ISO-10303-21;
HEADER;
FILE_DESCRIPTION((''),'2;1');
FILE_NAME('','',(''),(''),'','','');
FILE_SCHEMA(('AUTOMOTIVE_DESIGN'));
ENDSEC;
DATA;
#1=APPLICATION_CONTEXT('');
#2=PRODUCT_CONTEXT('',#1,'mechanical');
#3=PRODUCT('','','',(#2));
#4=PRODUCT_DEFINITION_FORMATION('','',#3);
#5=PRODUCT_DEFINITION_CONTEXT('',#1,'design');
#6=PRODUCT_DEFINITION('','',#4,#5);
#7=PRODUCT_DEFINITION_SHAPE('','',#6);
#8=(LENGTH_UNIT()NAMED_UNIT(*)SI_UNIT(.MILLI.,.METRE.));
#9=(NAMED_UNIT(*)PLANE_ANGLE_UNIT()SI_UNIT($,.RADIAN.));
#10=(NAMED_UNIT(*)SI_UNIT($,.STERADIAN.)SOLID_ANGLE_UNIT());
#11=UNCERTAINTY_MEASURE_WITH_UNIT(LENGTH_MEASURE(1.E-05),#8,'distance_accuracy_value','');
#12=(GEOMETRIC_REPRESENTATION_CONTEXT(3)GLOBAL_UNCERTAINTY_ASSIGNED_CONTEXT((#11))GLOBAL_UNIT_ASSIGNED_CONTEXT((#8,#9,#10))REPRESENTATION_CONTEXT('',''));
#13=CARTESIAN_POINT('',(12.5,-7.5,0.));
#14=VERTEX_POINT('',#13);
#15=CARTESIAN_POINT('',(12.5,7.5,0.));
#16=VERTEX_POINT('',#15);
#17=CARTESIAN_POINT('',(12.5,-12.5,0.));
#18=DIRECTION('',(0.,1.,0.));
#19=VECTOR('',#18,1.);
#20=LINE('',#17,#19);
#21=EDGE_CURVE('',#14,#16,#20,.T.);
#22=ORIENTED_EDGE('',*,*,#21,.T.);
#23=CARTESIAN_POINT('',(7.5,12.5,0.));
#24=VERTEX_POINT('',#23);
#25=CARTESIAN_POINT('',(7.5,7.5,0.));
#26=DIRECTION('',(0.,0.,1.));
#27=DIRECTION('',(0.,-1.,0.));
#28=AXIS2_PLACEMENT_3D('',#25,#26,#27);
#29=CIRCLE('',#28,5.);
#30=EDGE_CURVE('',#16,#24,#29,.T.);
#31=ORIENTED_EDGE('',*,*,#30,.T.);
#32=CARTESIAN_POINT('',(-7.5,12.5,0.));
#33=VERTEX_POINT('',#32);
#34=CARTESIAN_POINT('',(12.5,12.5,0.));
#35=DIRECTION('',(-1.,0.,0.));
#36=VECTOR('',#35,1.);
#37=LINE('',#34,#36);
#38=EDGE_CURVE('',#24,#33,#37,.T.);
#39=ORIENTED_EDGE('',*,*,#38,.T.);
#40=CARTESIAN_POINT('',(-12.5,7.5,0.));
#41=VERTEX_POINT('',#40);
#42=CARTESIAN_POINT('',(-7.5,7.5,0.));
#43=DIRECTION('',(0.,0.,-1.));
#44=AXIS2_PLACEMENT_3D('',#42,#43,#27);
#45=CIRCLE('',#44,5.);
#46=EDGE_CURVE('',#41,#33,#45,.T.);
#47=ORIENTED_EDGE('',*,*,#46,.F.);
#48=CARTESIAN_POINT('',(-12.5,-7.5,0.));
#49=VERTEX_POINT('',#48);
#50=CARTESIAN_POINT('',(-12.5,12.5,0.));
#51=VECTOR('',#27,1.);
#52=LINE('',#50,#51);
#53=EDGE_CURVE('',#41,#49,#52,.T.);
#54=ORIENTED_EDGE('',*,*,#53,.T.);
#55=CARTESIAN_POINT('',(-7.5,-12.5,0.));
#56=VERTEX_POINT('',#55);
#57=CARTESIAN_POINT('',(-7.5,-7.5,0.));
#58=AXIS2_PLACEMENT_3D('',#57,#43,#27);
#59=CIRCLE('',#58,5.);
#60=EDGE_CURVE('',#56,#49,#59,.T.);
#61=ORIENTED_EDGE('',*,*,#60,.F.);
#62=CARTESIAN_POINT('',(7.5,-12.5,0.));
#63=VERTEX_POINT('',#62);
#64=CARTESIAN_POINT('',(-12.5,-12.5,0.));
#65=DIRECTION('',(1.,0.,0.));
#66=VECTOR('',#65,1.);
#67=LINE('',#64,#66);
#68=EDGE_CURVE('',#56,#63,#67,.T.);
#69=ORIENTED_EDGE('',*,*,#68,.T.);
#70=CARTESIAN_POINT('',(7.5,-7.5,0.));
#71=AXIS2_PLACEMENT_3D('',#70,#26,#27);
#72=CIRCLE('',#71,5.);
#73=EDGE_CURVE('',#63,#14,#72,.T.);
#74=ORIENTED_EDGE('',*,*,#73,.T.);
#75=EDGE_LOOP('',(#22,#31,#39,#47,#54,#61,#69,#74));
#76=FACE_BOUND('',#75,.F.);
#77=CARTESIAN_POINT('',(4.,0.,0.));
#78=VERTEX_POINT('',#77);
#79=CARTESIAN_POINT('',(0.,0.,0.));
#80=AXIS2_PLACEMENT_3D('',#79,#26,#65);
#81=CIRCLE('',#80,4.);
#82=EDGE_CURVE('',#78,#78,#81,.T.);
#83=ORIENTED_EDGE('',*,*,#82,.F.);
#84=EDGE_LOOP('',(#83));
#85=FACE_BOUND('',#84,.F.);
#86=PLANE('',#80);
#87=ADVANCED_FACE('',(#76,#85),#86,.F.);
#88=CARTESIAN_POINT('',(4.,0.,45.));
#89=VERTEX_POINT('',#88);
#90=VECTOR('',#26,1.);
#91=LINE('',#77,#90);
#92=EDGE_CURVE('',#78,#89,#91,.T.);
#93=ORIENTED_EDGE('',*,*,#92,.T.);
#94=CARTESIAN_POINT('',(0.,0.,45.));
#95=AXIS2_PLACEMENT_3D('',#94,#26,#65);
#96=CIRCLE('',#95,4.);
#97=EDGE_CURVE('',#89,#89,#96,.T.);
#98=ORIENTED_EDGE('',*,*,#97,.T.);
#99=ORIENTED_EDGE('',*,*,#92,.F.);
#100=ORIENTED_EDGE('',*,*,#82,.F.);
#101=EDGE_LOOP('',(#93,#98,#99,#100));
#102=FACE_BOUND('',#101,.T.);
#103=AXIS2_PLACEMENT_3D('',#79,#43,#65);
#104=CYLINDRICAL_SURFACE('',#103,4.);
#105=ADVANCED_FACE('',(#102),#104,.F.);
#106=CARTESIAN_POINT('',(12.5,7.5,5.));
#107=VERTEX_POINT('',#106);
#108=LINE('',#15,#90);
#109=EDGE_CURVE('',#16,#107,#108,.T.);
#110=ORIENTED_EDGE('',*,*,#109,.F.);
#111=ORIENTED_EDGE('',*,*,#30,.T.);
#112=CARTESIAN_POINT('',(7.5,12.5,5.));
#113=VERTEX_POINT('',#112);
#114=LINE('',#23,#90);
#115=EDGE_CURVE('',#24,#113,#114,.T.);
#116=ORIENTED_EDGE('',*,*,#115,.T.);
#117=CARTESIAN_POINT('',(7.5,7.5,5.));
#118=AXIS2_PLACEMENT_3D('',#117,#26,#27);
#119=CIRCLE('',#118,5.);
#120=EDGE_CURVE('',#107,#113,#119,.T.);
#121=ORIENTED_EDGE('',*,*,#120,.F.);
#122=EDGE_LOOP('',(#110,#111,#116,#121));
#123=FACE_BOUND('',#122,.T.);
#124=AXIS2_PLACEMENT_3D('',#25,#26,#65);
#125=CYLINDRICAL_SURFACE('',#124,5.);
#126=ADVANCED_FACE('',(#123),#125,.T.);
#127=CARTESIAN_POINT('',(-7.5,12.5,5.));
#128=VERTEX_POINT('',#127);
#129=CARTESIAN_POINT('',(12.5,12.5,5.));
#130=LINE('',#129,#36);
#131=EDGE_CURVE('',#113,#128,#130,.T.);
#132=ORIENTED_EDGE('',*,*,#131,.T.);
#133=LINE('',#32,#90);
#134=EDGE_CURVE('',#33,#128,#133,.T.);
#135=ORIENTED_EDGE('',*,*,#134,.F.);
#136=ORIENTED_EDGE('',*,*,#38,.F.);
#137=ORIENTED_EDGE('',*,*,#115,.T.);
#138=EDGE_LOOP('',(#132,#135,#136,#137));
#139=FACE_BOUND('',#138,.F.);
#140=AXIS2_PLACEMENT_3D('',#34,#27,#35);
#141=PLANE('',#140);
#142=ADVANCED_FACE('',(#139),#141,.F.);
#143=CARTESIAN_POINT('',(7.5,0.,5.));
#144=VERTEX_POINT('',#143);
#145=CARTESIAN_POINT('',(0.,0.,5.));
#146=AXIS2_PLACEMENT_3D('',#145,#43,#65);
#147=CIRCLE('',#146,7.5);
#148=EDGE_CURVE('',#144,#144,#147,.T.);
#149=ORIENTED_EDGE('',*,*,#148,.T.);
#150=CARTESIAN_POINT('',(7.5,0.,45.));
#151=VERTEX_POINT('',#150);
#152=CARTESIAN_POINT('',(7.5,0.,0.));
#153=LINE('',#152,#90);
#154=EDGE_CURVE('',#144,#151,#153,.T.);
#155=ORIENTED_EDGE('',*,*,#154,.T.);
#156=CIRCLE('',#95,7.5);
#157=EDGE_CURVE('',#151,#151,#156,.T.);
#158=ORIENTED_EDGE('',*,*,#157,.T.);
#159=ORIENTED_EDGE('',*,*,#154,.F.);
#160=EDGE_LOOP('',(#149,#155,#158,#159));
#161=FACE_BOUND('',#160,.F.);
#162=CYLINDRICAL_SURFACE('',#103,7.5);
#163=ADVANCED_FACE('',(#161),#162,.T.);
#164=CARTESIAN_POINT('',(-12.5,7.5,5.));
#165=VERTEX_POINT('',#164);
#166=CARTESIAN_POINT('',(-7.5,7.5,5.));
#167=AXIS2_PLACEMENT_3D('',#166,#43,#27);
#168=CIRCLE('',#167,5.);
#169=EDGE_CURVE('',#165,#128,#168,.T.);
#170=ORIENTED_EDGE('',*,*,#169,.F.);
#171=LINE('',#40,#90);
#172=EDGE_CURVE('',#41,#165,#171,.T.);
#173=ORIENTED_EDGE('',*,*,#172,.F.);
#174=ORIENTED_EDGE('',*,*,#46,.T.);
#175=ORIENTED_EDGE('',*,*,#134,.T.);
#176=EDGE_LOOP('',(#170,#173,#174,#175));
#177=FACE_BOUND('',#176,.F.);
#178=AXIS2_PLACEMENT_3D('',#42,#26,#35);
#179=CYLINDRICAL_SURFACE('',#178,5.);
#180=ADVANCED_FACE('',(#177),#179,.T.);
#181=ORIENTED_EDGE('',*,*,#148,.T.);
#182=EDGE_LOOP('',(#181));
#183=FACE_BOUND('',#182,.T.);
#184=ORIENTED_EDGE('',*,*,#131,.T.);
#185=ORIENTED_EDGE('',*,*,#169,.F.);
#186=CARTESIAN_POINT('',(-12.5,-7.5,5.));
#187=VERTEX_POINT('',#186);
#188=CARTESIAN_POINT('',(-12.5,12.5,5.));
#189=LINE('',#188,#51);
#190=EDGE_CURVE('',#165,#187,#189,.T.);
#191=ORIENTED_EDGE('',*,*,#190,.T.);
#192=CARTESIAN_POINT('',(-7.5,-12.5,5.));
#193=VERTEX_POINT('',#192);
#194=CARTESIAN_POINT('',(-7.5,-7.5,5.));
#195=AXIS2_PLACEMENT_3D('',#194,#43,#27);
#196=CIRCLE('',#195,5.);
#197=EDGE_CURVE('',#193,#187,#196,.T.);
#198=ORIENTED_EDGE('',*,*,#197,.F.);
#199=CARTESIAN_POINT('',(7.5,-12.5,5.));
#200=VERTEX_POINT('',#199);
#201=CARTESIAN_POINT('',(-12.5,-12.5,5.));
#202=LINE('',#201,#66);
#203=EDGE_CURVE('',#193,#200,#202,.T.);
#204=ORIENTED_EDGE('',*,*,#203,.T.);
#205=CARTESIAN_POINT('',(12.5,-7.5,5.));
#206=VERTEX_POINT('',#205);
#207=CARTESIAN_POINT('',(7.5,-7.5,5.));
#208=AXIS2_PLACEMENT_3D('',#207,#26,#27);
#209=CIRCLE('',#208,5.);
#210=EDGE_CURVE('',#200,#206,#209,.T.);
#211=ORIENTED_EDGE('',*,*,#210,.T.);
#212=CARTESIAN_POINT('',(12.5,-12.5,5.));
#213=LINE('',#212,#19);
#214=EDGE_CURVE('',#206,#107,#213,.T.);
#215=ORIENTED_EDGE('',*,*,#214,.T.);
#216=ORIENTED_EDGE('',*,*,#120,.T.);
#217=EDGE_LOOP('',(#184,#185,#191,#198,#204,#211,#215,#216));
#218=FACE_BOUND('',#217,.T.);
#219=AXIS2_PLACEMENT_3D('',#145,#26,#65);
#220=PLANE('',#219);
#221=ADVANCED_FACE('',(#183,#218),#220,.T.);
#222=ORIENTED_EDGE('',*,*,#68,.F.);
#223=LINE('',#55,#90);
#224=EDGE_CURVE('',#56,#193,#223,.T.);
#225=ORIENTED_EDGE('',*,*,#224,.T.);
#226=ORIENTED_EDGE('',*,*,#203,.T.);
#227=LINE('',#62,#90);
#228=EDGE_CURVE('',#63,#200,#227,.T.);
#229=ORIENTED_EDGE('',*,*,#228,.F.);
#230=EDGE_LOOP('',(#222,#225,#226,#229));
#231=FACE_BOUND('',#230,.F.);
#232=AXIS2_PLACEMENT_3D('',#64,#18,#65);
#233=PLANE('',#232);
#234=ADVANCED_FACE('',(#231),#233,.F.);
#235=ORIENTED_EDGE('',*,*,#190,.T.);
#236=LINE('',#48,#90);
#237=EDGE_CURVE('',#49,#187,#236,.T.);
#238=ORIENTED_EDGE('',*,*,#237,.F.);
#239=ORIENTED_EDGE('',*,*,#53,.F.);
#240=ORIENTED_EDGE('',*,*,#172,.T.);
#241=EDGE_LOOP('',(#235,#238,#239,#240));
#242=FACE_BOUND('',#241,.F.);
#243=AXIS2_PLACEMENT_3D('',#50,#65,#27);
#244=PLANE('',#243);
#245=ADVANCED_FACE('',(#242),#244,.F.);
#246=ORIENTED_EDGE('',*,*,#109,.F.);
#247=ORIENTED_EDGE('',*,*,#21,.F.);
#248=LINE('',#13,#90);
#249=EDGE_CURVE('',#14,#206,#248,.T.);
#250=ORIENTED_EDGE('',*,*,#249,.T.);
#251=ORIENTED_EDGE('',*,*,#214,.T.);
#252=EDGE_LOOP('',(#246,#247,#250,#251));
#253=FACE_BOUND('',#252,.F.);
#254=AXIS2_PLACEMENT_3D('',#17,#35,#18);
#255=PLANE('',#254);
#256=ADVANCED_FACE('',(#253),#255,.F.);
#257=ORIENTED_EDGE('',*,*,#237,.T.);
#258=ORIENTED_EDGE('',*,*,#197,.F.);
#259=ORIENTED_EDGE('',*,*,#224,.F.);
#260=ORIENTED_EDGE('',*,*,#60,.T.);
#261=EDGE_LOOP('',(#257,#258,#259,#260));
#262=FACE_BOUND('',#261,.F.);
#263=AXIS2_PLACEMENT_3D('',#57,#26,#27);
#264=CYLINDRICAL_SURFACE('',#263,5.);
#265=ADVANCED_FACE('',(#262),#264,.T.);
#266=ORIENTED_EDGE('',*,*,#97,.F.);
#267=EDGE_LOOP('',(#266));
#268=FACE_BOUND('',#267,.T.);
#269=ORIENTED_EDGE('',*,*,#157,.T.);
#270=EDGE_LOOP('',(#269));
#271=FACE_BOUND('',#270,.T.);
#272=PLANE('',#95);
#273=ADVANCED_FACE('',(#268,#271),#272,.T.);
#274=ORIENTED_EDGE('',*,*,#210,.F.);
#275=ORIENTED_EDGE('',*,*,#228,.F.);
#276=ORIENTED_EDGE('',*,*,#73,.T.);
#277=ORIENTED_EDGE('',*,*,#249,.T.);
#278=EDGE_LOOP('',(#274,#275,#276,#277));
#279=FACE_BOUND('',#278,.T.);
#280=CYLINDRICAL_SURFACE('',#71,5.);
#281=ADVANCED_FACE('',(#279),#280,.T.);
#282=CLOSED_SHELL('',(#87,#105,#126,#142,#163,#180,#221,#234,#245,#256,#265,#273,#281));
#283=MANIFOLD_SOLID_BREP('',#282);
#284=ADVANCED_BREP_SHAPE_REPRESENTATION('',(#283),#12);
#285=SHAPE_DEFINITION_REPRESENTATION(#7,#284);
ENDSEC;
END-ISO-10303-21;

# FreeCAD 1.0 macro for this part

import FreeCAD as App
import Part
import Sketcher
from FreeCAD import Vector


def edges_at(feature, points):
    """Names of the edges that pass closest to the given points."""
    edges = feature.Shape.Edges
    near = lambda p: min(range(len(edges)), key=lambda i: edges[i].distToShape(Part.Vertex(*p))[0])
    return sorted({f"Edge{near(p) + 1}" for p in points})


def add_polygon(sketch, points):
    """Adds a closed chain of lines whose ends are joined by coincident constraints."""
    first, n = sketch.GeometryCount, len(points)
    for a, b in zip(points, points[1:] + points[:1]):
        sketch.addGeometry(Part.LineSegment(App.Vector(*a, 0), App.Vector(*b, 0)), False)
    for i in range(n):
        sketch.addConstraint(Sketcher.Constraint("Coincident", first + i, 2, first + (i + 1) % n, 1))

doc = App.newDocument("Part")
params = doc.addObject("Spreadsheet::Sheet", "Params")
for row, (alias, value) in enumerate([
    ("sketch1_width", "25 mm"),
    ("pad1_length", "5 mm"),
    ("sketch2_diameter", "15 mm"),
    ("sketch2_diameter2", "8 mm"),
    ("pad2_length", "45 mm"),
    ("fillet_radius", "5 mm"),
    ("sketch3_diameter", "8 mm"),
    ("pocket1_length", "45 mm"),
], start=1):
    params.set(f"A{row}", alias)
    params.set(f"B{row}", "=" + value)
    params.setAlias(f"B{row}", alias)

body = doc.addObject("PartDesign::Body", "Body")

# Sketch on XY plane
sketch1 = body.newObject("Sketcher::SketchObject", "Sketch")
sketch1.AttachmentSupport = (doc.getObject("XY_Plane"), [""])
sketch1.MapMode = "FlatFace"
add_polygon(sketch1, [(-12, -12), (12, -12), (12, 12), (-12, 12)])  # lines 0-3
sketch1.addConstraint([
    Sketcher.Constraint("Horizontal", 0),
    Sketcher.Constraint("Vertical", 1),
    Sketcher.Constraint("Horizontal", 2),
    Sketcher.Constraint("Vertical", 3),
    Sketcher.Constraint("Symmetric", 0, 2, 2, 2, -1, 1),
    Sketcher.Constraint("Equal", 2, 1),
    Sketcher.Constraint("DistanceX", 0, 1, 0, 2, 25.0),
])
sketch1.setExpression("Constraints[10]", "Params.sketch1_width")
pad1 = body.newObject("PartDesign::Pad", "Pad")
pad1.Profile = sketch1
pad1.setExpression("Length", "Params.pad1_length")

# Sketch on XY plane
sketch2 = body.newObject("Sketcher::SketchObject", "Sketch001")
sketch2.AttachmentSupport = (doc.getObject("XY_Plane"), [""])
sketch2.MapMode = "FlatFace"
sketch2.addGeometry([
    Part.Circle(Vector(0, 0, 0), Vector(0, 0, 1), 7.5),
    Part.Circle(Vector(0, 0, 0), Vector(0, 0, 1), 4),
], False)
sketch2.addConstraint([
    Sketcher.Constraint("Coincident", 0, 3, -1, 1),
    Sketcher.Constraint("Coincident", 1, 3, -1, 1),
    Sketcher.Constraint("Diameter", 0, 15.0),
    Sketcher.Constraint("Diameter", 1, 8.0),
])
sketch2.setExpression("Constraints[2]", "Params.sketch2_diameter")
sketch2.setExpression("Constraints[3]", "Params.sketch2_diameter2")
pad2 = body.newObject("PartDesign::Pad", "Pad001")
pad2.Profile = sketch2
pad2.setExpression("Length", "Params.pad2_length")
doc.recompute()

fillet = body.newObject("PartDesign::Fillet", "Fillet")
fillet.Base = (pad2, edges_at(pad2, [
    (12.5, 12.5, 2.5),
    (-12.5, 12.5, 2.5),
    (12.5, -12.5, 2.5),
    (-12.5, -12.5, 2.5),
]))
fillet.setExpression("Radius", "Params.fillet_radius")

# Sketch on XY plane
sketch3 = body.newObject("Sketcher::SketchObject", "Sketch002")
sketch3.AttachmentSupport = (doc.getObject("XY_Plane"), [""])
sketch3.MapMode = "FlatFace"
sketch3.addGeometry(Part.Circle(Vector(0, 0, 0), Vector(0, 0, 1), 4), False)
sketch3.addConstraint([
    Sketcher.Constraint("Coincident", 0, 3, -1, 1),
    Sketcher.Constraint("Diameter", 0, 8.0),
])
sketch3.setExpression("Constraints[1]", "Params.sketch3_diameter")
pocket1 = body.newObject("PartDesign::Pocket", "Pocket")
pocket1.Profile = sketch3
pocket1.setExpression("Length", "Params.pocket1_length")
pocket1.Reversed = True

doc.recompute()
